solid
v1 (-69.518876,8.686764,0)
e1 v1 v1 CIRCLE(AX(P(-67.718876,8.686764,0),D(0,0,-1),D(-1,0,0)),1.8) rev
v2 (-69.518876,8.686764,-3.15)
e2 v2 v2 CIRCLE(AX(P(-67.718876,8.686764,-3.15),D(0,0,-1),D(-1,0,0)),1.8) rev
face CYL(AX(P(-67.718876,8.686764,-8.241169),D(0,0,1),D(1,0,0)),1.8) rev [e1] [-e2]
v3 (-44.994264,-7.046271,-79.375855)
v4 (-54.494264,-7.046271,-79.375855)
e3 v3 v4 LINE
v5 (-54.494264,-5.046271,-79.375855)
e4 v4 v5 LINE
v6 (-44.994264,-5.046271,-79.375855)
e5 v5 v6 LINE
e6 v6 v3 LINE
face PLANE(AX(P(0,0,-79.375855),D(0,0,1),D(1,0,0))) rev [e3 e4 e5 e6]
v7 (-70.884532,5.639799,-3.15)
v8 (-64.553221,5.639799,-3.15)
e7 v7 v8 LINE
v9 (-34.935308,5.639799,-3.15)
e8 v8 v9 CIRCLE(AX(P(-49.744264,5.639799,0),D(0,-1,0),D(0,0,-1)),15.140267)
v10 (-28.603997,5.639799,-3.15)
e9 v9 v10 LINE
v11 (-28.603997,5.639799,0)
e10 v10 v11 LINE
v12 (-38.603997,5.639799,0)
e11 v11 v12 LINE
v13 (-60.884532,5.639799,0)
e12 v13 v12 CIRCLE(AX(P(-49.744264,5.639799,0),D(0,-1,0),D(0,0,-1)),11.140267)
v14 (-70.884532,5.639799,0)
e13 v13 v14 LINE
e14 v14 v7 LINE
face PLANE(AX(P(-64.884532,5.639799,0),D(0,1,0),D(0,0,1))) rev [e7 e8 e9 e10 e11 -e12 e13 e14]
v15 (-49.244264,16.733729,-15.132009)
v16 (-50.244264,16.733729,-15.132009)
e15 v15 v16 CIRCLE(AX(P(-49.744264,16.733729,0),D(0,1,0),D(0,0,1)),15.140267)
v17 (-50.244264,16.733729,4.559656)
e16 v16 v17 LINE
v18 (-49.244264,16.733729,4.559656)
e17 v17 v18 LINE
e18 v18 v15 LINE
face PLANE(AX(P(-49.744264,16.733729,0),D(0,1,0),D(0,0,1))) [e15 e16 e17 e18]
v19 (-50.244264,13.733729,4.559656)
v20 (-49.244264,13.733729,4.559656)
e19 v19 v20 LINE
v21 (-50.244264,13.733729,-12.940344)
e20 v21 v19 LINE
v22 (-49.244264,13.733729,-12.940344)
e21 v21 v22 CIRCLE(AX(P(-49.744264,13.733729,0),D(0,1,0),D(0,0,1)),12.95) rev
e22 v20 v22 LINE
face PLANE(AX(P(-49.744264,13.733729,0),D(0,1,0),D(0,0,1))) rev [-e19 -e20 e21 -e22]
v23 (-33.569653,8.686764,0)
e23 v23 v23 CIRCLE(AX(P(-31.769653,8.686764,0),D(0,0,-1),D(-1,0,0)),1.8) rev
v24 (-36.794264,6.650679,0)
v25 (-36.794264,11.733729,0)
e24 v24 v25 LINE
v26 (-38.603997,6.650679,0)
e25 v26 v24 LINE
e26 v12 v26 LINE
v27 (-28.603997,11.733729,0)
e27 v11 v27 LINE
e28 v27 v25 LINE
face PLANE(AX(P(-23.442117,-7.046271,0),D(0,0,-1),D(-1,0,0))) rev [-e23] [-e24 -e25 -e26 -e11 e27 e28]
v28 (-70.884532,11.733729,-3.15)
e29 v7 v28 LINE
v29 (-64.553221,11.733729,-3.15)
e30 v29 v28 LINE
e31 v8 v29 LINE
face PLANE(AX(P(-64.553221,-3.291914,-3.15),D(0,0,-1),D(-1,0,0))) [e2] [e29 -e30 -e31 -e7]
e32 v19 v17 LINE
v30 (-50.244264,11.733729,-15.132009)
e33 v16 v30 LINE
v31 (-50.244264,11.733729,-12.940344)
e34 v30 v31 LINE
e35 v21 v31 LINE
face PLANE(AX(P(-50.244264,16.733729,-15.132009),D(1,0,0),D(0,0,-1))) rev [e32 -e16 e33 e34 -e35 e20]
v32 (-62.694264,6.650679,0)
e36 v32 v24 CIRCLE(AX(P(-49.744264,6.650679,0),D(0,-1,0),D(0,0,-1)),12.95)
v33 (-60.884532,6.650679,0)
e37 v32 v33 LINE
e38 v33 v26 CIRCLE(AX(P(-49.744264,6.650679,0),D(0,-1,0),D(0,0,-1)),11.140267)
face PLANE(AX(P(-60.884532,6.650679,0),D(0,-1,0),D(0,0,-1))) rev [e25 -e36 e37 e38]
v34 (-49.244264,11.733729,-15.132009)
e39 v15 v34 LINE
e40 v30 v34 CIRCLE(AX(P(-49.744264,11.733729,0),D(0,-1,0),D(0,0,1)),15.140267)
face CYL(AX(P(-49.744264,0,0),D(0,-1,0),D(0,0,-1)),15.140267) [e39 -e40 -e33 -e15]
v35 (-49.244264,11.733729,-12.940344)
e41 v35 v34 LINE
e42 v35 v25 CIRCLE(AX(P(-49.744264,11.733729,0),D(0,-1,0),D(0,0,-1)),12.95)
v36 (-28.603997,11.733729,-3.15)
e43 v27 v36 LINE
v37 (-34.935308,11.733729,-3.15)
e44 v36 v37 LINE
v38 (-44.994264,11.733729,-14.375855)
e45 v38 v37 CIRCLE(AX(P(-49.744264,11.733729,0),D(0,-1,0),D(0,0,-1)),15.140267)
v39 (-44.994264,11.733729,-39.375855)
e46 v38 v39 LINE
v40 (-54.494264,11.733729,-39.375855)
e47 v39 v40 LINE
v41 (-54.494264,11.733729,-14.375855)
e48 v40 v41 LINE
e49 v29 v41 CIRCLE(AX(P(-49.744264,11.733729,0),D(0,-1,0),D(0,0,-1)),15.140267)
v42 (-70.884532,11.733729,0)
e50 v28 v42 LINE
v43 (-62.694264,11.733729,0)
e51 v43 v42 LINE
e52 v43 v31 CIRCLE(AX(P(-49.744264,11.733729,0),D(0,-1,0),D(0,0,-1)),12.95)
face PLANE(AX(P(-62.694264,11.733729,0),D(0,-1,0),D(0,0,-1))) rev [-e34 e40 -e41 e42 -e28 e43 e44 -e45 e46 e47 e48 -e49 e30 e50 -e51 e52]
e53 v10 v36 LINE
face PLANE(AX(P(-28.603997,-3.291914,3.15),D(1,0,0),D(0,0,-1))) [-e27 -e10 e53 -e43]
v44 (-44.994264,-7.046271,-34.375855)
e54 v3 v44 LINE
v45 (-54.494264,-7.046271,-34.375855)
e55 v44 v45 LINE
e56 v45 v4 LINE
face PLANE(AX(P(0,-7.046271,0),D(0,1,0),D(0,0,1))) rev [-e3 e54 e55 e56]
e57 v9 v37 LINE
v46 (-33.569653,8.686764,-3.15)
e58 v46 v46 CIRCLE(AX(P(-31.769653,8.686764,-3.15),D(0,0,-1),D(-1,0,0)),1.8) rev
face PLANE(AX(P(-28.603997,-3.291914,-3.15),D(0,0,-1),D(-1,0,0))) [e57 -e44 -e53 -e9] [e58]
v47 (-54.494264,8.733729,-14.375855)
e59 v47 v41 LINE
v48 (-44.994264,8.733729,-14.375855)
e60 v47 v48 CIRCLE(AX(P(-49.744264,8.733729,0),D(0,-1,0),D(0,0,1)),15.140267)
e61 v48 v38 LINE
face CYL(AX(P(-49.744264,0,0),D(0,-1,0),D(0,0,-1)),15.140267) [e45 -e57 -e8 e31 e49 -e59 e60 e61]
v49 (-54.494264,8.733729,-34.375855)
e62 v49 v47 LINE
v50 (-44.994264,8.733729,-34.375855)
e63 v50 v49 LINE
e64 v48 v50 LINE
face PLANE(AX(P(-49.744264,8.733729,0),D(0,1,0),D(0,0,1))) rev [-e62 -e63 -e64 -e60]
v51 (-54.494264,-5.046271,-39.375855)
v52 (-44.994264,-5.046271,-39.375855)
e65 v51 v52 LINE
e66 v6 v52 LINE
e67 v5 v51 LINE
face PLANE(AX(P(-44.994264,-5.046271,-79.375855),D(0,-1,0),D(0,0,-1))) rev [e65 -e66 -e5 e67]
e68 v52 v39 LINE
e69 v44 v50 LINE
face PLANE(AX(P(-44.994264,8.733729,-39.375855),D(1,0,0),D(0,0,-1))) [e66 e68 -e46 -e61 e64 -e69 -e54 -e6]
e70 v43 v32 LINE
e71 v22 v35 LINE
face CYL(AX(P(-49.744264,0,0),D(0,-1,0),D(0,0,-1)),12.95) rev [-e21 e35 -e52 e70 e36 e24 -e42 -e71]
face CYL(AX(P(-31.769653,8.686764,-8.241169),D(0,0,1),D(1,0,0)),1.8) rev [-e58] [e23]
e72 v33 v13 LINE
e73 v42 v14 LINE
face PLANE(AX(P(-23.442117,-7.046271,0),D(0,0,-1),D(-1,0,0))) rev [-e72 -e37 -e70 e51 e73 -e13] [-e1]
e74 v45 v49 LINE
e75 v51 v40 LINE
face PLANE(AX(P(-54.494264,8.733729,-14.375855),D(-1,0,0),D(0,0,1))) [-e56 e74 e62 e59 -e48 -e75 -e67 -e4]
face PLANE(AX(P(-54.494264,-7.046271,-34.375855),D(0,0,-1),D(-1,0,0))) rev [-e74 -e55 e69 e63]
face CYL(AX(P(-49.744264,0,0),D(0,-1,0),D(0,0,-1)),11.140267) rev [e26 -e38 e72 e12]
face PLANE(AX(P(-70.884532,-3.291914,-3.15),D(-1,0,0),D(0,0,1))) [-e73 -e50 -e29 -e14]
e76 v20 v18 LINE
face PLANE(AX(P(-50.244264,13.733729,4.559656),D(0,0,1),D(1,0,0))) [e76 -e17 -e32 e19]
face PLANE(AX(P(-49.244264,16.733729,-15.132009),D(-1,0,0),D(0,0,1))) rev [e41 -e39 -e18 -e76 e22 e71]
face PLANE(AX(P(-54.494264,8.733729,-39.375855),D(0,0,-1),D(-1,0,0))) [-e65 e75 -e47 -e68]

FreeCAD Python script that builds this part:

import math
import FreeCAD as App
import Part
import Sketcher
Q = App.Units.Quantity


def add_polygon(sketch, points):
    """Adds a closed chain of lines whose ends are joined by coincident constraints."""
    first, n = sketch.GeometryCount, len(points)
    for a, b in zip(points, points[1:] + points[:1]):
        sketch.addGeometry(Part.LineSegment(App.Vector(*a, 0), App.Vector(*b, 0)), False)
    for i in range(n):
        sketch.addConstraint(Sketcher.Constraint("Coincident", first + i, 2, first + (i + 1) % n, 1))

doc = App.newDocument("Part")
body = doc.addObject("PartDesign::Body", "Body")

sketch1 = doc.addObject("Sketcher::SketchObject", "Sketch")
body.addObject(sketch1)
sketch1.AttachmentSupport = (doc.XY_Plane, [""])
sketch1.MapMode = "FlatFace"
add_polygon(sketch1, [(-62.7, 11.7), (-64.9, 11.7), (-64.9, 5.6), (-60.9, 5.6), (-60.9, 6.7), (-62.7, 6.7)])
sketch1.addGeometry(Part.LineSegment(App.Vector(-49.7, 5.6, 0), App.Vector(-49.7, 11.7, 0)), True)
sketch1.addConstraint([
    Sketcher.Constraint("Horizontal", 0),
    Sketcher.Constraint("Vertical", 1),
    Sketcher.Constraint("Horizontal", 2),
    Sketcher.Constraint("Vertical", 3),
    Sketcher.Constraint("Horizontal", 4),
    Sketcher.Constraint("Vertical", 5),
    Sketcher.Constraint("Vertical", 6),
    Sketcher.Constraint("Horizontal", 2, 2, 6, 1),
    Sketcher.Constraint("Horizontal", 5, 2, 6, 2),
    Sketcher.Constraint("DistanceX", 2, 1, 2, 2, Q("4 mm")),
    Sketcher.Constraint("DistanceX", 4, 2, 6, 1, Q("12.95 mm")),
    Sketcher.Constraint("DistanceY", 1, 2, 1, 1, Q("6.09393 mm")),
    Sketcher.Constraint("DistanceY", 3, 1, 3, 2, Q("1.01088 mm")),
    Sketcher.Constraint("DistanceY", -1, 1, 1, 2, Q("5.639799 mm")),
    Sketcher.Constraint("DistanceX", 0, 2, 0, 1, Q("2.190267 mm")),
    Sketcher.Constraint("DistanceX", 0, 2, -1, 1, Q("64.884532 mm")),
])
revolution = doc.addObject("PartDesign::Revolution", "Revolution")
body.addObject(revolution)
revolution.Profile = sketch1
revolution.ReferenceAxis = (sketch1, ["Axis0"])
revolution.Angle = 360

sketch2 = doc.addObject("Sketcher::SketchObject", "Sketch001")
body.addObject(sketch2)
sketch2.AttachmentSupport = (doc.XZ_Plane, [""])
sketch2.MapMode = "FlatFace"
sketch2.AttachmentOffset = App.Placement(App.Vector(0, 0, -11.733729), App.Rotation())
sketch2.addGeometry([
    Part.LineSegment(App.Vector(-50.2, -15.1, 0), App.Vector(-50.2, -12.9, 0)),
    Part.ArcOfCircle(Part.Circle(App.Vector(-49.7, 0, 0), App.Vector(0, 0, 1), 12.9), math.radians(-92.21), math.radians(-87.79)),
    Part.LineSegment(App.Vector(-49.2, -12.9, 0), App.Vector(-49.2, -15.1, 0)),
    Part.ArcOfCircle(Part.Circle(App.Vector(-49.7, 0, 0), App.Vector(0, 0, 1), 15.1), math.radians(-91.89), math.radians(-88.11)),
], False)
sketch2.addConstraint([
    Sketcher.Constraint("Coincident", 0, 2, 1, 1),
    Sketcher.Constraint("Coincident", 1, 2, 2, 1),
    Sketcher.Constraint("Coincident", 2, 2, 3, 2),
    Sketcher.Constraint("Coincident", 3, 1, 0, 1),
    Sketcher.Constraint("Vertical", 0),
    Sketcher.Constraint("Vertical", 2),
    Sketcher.Constraint("Coincident", 3, 3, 1, 3),
    Sketcher.Constraint("PointOnObject", 1, 3, -1),
    Sketcher.Constraint("Horizontal", 0, 2, 1, 2),
    Sketcher.Constraint("Radius", 1, Q("12.95 mm")),
    Sketcher.Constraint("DistanceX", 0, 2, 1, 2, Q("1 mm")),
    Sketcher.Constraint("Radius", 3, Q("15.140268 mm")),
    Sketcher.Constraint("DistanceX", 1, 3, -1, 1, Q("49.744264 mm")),
])
pad1 = doc.addObject("PartDesign::Pad", "Pad")
body.addObject(pad1)
pad1.Profile = sketch2
pad1.Length = 5
pad1.Reversed = True

sketch3 = doc.addObject("Sketcher::SketchObject", "Sketch002")
body.addObject(sketch3)
sketch3.AttachmentSupport = (doc.XZ_Plane, [""])
sketch3.MapMode = "FlatFace"
sketch3.AttachmentOffset = App.Placement(App.Vector(0, 0, -16.733729), App.Rotation())
sketch3.addGeometry([
    Part.LineSegment(App.Vector(-50.2, -15.1, 0), App.Vector(-50.2, 4.6, 0)),
    Part.LineSegment(App.Vector(-50.2, 4.6, 0), App.Vector(-49.2, 4.6, 0)),
    Part.LineSegment(App.Vector(-49.2, 4.6, 0), App.Vector(-49.2, -15.1, 0)),
    Part.ArcOfCircle(Part.Circle(App.Vector(-49.7, 0, 0), App.Vector(0, 0, 1), 15.1), math.radians(-91.89), math.radians(-88.11)),
], False)
sketch3.addConstraint([
    Sketcher.Constraint("Coincident", 0, 2, 1, 1),
    Sketcher.Constraint("Coincident", 1, 2, 2, 1),
    Sketcher.Constraint("Coincident", 2, 2, 3, 2),
    Sketcher.Constraint("Coincident", 3, 1, 0, 1),
    Sketcher.Constraint("Vertical", 0),
    Sketcher.Constraint("Horizontal", 1),
    Sketcher.Constraint("Vertical", 2),
    Sketcher.Constraint("PointOnObject", 3, 3, -1),
    Sketcher.Constraint("Horizontal", 2, 2, 3, 1),
    Sketcher.Constraint("DistanceX", 1, 1, 1, 2, Q("1 mm")),
    Sketcher.Constraint("Radius", 3, Q("15.140268 mm")),
    Sketcher.Constraint("DistanceY", 0, 1, 0, 2, Q("19.691665 mm")),
    Sketcher.Constraint("DistanceX", 3, 3, -1, 1, Q("49.744264 mm")),
])
pad2 = doc.addObject("PartDesign::Pad", "Pad001")
body.addObject(pad2)
pad2.Profile = sketch3
pad2.Length = 3

sketch4 = doc.addObject("Sketcher::SketchObject", "Sketch003")
body.addObject(sketch4)
sketch4.AttachmentSupport = (doc.XZ_Plane, [""])
sketch4.MapMode = "FlatFace"
sketch4.AttachmentOffset = App.Placement(App.Vector(0, 0, -11.733729), App.Rotation())
sketch4.addGeometry([
    Part.LineSegment(App.Vector(-54.5, -39.4, 0), App.Vector(-54.5, -14.4, 0)),
    Part.ArcOfCircle(Part.Circle(App.Vector(-49.7, 0, 0), App.Vector(0, 0, 1), 15.1), math.radians(-108.28), math.radians(-91.89)),
    Part.ArcOfCircle(Part.Circle(App.Vector(-49.7, 0, 0), App.Vector(0, 0, 1), 15.1), math.radians(-91.89), math.radians(-88.11)),
    Part.ArcOfCircle(Part.Circle(App.Vector(-49.7, 0, 0), App.Vector(0, 0, 1), 15.1), math.radians(-88.11), math.radians(-71.72)),
    Part.LineSegment(App.Vector(-45, -14.4, 0), App.Vector(-45, -39.4, 0)),
    Part.LineSegment(App.Vector(-45, -39.4, 0), App.Vector(-54.5, -39.4, 0)),
], False)
sketch4.addConstraint([
    Sketcher.Constraint("Coincident", 0, 2, 1, 1),
    Sketcher.Constraint("Tangent", 1, 2, 2, 1),
    Sketcher.Constraint("Tangent", 2, 2, 3, 1),
    Sketcher.Constraint("Coincident", 3, 2, 4, 1),
    Sketcher.Constraint("Coincident", 4, 2, 5, 1),
    Sketcher.Constraint("Coincident", 5, 2, 0, 1),
    Sketcher.Constraint("Vertical", 0),
    Sketcher.Constraint("Vertical", 4),
    Sketcher.Constraint("Horizontal", 5),
    Sketcher.Constraint("Coincident", 3, 3, 1, 3),
    Sketcher.Constraint("PointOnObject", 1, 3, -1),
    Sketcher.Constraint("Horizontal", 1, 2, 2, 2),
    Sketcher.Constraint("Horizontal", 0, 2, 3, 2),
    Sketcher.Constraint("DistanceY", 0, 1, 0, 2, Q("25 mm")),
    Sketcher.Constraint("DistanceX", 5, 2, 5, 1, Q("9.5 mm")),
    Sketcher.Constraint("DistanceX", 1, 2, 2, 2, Q("1 mm")),
    Sketcher.Constraint("Radius", 1, Q("15.140267 mm")),
    Sketcher.Constraint("DistanceX", 1, 3, -1, 1, Q("49.744264 mm")),
])
pad3 = doc.addObject("PartDesign::Pad", "Pad002")
body.addObject(pad3)
pad3.Profile = sketch4
pad3.Length = 3

sketch5 = doc.addObject("Sketcher::SketchObject", "Sketch004")
body.addObject(sketch5)
sketch5.AttachmentSupport = (doc.XZ_Plane, [""])
sketch5.MapMode = "FlatFace"
sketch5.AttachmentOffset = App.Placement(App.Vector(0, 0, -8.733729), App.Rotation())
add_polygon(sketch5, [(-54, -34), (-54, -39), (-45, -39), (-45, -34)])
sketch5.addConstraint([
    Sketcher.Constraint("Vertical", 0),
    Sketcher.Constraint("Horizontal", 1),
    Sketcher.Constraint("Vertical", 2),
    Sketcher.Constraint("Horizontal", 3),
    Sketcher.Constraint("DistanceY", 0, 2, 0, 1, Q("5 mm")),
    Sketcher.Constraint("DistanceX", 1, 1, 1, 2, Q("9.5 mm")),
    Sketcher.Constraint("DistanceX", 0, 2, -1, 1, Q("54.494264 mm")),
    Sketcher.Constraint("DistanceY", 0, 2, -1, 1, Q("39.375855 mm")),
])
pad4 = doc.addObject("PartDesign::Pad", "Pad003")
body.addObject(pad4)
pad4.Profile = sketch5
pad4.Length = 15.78

sketch6 = doc.addObject("Sketcher::SketchObject", "Sketch005")
body.addObject(sketch6)
sketch6.AttachmentSupport = (doc.XY_Plane, [""])
sketch6.MapMode = "FlatFace"
sketch6.AttachmentOffset = App.Placement(App.Vector(0, 0, -39.375855), App.Rotation())
add_polygon(sketch6, [(-45, -5), (-45, -7), (-54.5, -7), (-54.5, -5)])
sketch6.addConstraint([
    Sketcher.Constraint("Vertical", 0),
    Sketcher.Constraint("Horizontal", 1),
    Sketcher.Constraint("Vertical", 2),
    Sketcher.Constraint("Horizontal", 3),
    Sketcher.Constraint("DistanceY", 0, 2, 0, 1, Q("2 mm")),
    Sketcher.Constraint("DistanceX", 1, 2, 1, 1, Q("9.5 mm")),
    Sketcher.Constraint("DistanceY", 0, 2, -1, 1, Q("7.046271 mm")),
    Sketcher.Constraint("DistanceX", 0, 2, -1, 1, Q("44.994264 mm")),
])
pad5 = doc.addObject("PartDesign::Pad", "Pad004")
body.addObject(pad5)
pad5.Profile = sketch6
pad5.Length = 40
pad5.Reversed = True

sketch7 = doc.addObject("Sketcher::SketchObject", "Sketch006")
body.addObject(sketch7)
sketch7.AttachmentSupport = (doc.XZ_Plane, [""])
sketch7.MapMode = "FlatFace"
sketch7.AttachmentOffset = App.Placement(App.Vector(0, 0, -11.733729), App.Rotation())
sketch7.addGeometry([
    Part.LineSegment(App.Vector(-29, -3, 0), App.Vector(-35, -3, 0)),
    Part.ArcOfCircle(Part.Circle(App.Vector(-50, 0, 0), App.Vector(0, 0, 1), 15), math.radians(-12), math.radians(12)),
    Part.LineSegment(App.Vector(-35, 3, 0), App.Vector(-29, 3, 0)),
    Part.LineSegment(App.Vector(-29, 3, 0), App.Vector(-29, -3, 0)),
    Part.LineSegment(App.Vector(-71, -3, 0), App.Vector(-71, 3, 0)),
    Part.LineSegment(App.Vector(-71, 3, 0), App.Vector(-65, 3, 0)),
    Part.ArcOfCircle(Part.Circle(App.Vector(-50, 0, 0), App.Vector(0, 0, 1), 15), math.radians(168), math.radians(192)),
    Part.LineSegment(App.Vector(-65, -3, 0), App.Vector(-71, -3, 0)),
], False)
sketch7.addConstraint([
    Sketcher.Constraint("Coincident", 0, 2, 1, 1),
    Sketcher.Constraint("Coincident", 1, 2, 2, 1),
    Sketcher.Constraint("Coincident", 2, 2, 3, 1),
    Sketcher.Constraint("Coincident", 3, 2, 0, 1),
    Sketcher.Constraint("Coincident", 4, 2, 5, 1),
    Sketcher.Constraint("Coincident", 5, 2, 6, 1),
    Sketcher.Constraint("Coincident", 6, 2, 7, 1),
    Sketcher.Constraint("Coincident", 7, 2, 4, 1),
    Sketcher.Constraint("Horizontal", 0),
    Sketcher.Constraint("Horizontal", 2),
    Sketcher.Constraint("Vertical", 3),
    Sketcher.Constraint("Vertical", 4),
    Sketcher.Constraint("Horizontal", 5),
    Sketcher.Constraint("Horizontal", 7),
    Sketcher.Constraint("Coincident", 6, 3, 1, 3),
    Sketcher.Constraint("Equal", 1, 6),
    Sketcher.Constraint("Symmetric", 0, 2, 1, 2, -1),
    Sketcher.Constraint("Horizontal", 2, 2, 4, 2),
    Sketcher.Constraint("Horizontal", 3, 2, 6, 2),
    Sketcher.Constraint("Equal", 2, 5),
    Sketcher.Constraint("DistanceY", 3, 2, 3, 1, Q("6.3 mm")),
    Sketcher.Constraint("Radius", 1, Q("15.140267 mm")),
    Sketcher.Constraint("DistanceX", 0, 2, 0, 1, Q("6.331311 mm")),
    Sketcher.Constraint("DistanceX", 4, 2, -1, 1, Q("70.884532 mm")),
])
pad6 = doc.addObject("PartDesign::Pad", "Pad005")
body.addObject(pad6)
pad6.Profile = sketch7
pad6.Length = 6.09393

sketch8 = doc.addObject("Sketcher::SketchObject", "Sketch007")
body.addObject(sketch8)
sketch8.AttachmentSupport = (doc.XY_Plane, [""])
sketch8.MapMode = "FlatFace"
sketch8.AttachmentOffset = App.Placement(App.Vector(0, 0, 3.15), App.Rotation())
sketch8.addGeometry([
    Part.Circle(App.Vector(-31.8, 8.7, 0), App.Vector(0, 0, 1), 1.8),
    Part.Circle(App.Vector(-67.7, 8.7, 0), App.Vector(0, 0, 1), 1.8),
], False)
sketch8.addConstraint([
    Sketcher.Constraint("Equal", 0, 1),
    Sketcher.Constraint("Horizontal", 0, 3, 1, 3),
    Sketcher.Constraint("Diameter", 0, Q("3.6 mm")),
    Sketcher.Constraint("DistanceX", 0, 3, -1, 1, Q("31.769653 mm")),
    Sketcher.Constraint("DistanceY", -1, 1, 0, 3, Q("8.686764 mm")),
    Sketcher.Constraint("DistanceX", 1, 3, -1, 1, Q("67.718876 mm")),
])
pocket1 = doc.addObject("PartDesign::Pocket", "Pocket")
body.addObject(pocket1)
pocket1.Profile = sketch8
pocket1.Length = 6.3

sketch9 = doc.addObject("Sketcher::SketchObject", "Sketch008")
body.addObject(sketch9)
sketch9.AttachmentSupport = (doc.XZ_Plane, [""])
sketch9.MapMode = "FlatFace"
sketch9.AttachmentOffset = App.Placement(App.Vector(0, 0, -11.733729), App.Rotation())
add_polygon(sketch9, [(-75, 0), (-75, 32), (-23, 32), (-23, 0)])
sketch9.addConstraint([
    Sketcher.Constraint("Vertical", 0),
    Sketcher.Constraint("Horizontal", 1),
    Sketcher.Constraint("Vertical", 2),
    Sketcher.Constraint("Horizontal", 3),
    Sketcher.Constraint("PointOnObject", 2, 2, -1),
    Sketcher.Constraint("DistanceX", 1, 1, 1, 2, Q("51.153218 mm")),
    Sketcher.Constraint("DistanceY", 0, 1, 0, 2, Q("31.902182 mm")),
    Sketcher.Constraint("DistanceX", 0, 2, -1, 1, Q("74.595335 mm")),
])
pocket2 = doc.addObject("PartDesign::Pocket", "Pocket001")
body.addObject(pocket2)
pocket2.Profile = sketch9
pocket2.Type = "ThroughAll"
pocket2.Reversed = True

doc.recompute()
